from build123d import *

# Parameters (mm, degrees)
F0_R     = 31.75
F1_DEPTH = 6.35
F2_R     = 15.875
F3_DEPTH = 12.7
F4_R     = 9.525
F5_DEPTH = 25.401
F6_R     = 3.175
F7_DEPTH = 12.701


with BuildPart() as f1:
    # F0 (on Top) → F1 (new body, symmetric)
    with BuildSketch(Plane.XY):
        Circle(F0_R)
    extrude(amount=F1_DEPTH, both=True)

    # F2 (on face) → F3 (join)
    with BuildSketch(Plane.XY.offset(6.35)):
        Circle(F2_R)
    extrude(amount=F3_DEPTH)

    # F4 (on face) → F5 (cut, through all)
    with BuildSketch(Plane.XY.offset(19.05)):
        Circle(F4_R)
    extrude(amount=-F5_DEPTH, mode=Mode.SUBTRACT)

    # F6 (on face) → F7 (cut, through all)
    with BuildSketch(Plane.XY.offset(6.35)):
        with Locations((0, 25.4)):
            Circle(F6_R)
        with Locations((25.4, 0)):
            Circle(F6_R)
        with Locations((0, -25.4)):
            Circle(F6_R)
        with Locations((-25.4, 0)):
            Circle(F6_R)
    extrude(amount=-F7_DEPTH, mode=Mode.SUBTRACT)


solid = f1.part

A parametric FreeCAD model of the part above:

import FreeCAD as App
import Part
import Sketcher
from FreeCAD import Vector
Q = App.Units.Quantity

doc = App.newDocument("Part")
body = doc.addObject("PartDesign::Body", "Body")

sketch1 = body.newObject("Sketcher::SketchObject", "Sketch")
sketch1.AttachmentSupport = (doc.getObject("XY_Plane"), [""])
sketch1.MapMode = "FlatFace"
sketch1.addGeometry(Part.Circle(Vector(0, 0, 0), Vector(0, 0, 1), 32), False)
sketch1.addConstraint(Sketcher.Constraint("Coincident", 0, 3, -1, 1))
sketch1.addConstraint(Sketcher.Constraint("Diameter", 0, Q("2.5 in")))
pad1 = body.newObject("PartDesign::Pad", "Pad")
pad1.Profile = sketch1
pad1.Length = Q("0.5 in")
pad1.Midplane = True

sketch2 = body.newObject("Sketcher::SketchObject", "Sketch001")
sketch2.AttachmentSupport = (doc.getObject("XY_Plane"), [""])
sketch2.MapMode = "FlatFace"
sketch2.AttachmentOffset = App.Placement(Vector(0, 0, 0.25 * 25.4), App.Rotation())
sketch2.addGeometry(Part.Circle(Vector(0, 0, 0), Vector(0, 0, 1), 16), False)
sketch2.addConstraint(Sketcher.Constraint("Coincident", 0, 3, -1, 1))
sketch2.addConstraint(Sketcher.Constraint("Diameter", 0, Q("1.25 in")))
pad2 = body.newObject("PartDesign::Pad", "Pad001")
pad2.Profile = sketch2
pad2.Length = Q("0.5 in")

sketch3 = body.newObject("Sketcher::SketchObject", "Sketch002")
sketch3.AttachmentSupport = (doc.getObject("XY_Plane"), [""])
sketch3.MapMode = "FlatFace"
sketch3.AttachmentOffset = App.Placement(Vector(0, 0, 0.75 * 25.4), App.Rotation())
sketch3.addGeometry(Part.Circle(Vector(0, 0, 0), Vector(0, 0, 1), 10), False)
sketch3.addConstraint(Sketcher.Constraint("Coincident", 0, 3, -1, 1))
sketch3.addConstraint(Sketcher.Constraint("Diameter", 0, Q("0.75 in")))
pocket1 = body.newObject("PartDesign::Pocket", "Pocket")
pocket1.Profile = sketch3
pocket1.Type = "ThroughAll"

sketch4 = body.newObject("Sketcher::SketchObject", "Sketch003")
sketch4.AttachmentSupport = (doc.getObject("XY_Plane"), [""])
sketch4.MapMode = "FlatFace"
sketch4.AttachmentOffset = App.Placement(Vector(0, 0, 0.25 * 25.4), App.Rotation())
sketch4.addGeometry(Part.Circle(Vector(0, 25.4, 0), Vector(0, 0, 1), 3.2), False)
sketch4.addGeometry(Part.Circle(Vector(25.4, 0, 0), Vector(0, 0, 1), 3.2), False)
sketch4.addGeometry(Part.Circle(Vector(0, -25.4, 0), Vector(0, 0, 1), 3.2), False)
sketch4.addGeometry(Part.Circle(Vector(-25.4, 0, 0), Vector(0, 0, 1), 3.2), False)
sketch4.addConstraint(Sketcher.Constraint("Equal", 0, 1))
sketch4.addConstraint(Sketcher.Constraint("Equal", 1, 2))
sketch4.addConstraint(Sketcher.Constraint("Equal", 2, 3))
sketch4.addConstraint(Sketcher.Constraint("Symmetric", 0, 3, 2, 3, -1, 1))
sketch4.addConstraint(Sketcher.Constraint("Symmetric", 1, 3, 3, 3, -1, 1))
sketch4.addConstraint(Sketcher.Constraint("PointOnObject", 0, 3, -2))
sketch4.addConstraint(Sketcher.Constraint("PointOnObject", 1, 3, -1))
sketch4.addConstraint(Sketcher.Constraint("Diameter", 0, Q("0.25 in")))
sketch4.addConstraint(Sketcher.Constraint("DistanceY", -1, 1, 0, 3, Q("1 in")))
sketch4.addConstraint(Sketcher.Constraint("DistanceX", -1, 1, 1, 3, Q("1 in")))
pocket2 = body.newObject("PartDesign::Pocket", "Pocket001")
pocket2.Profile = sketch4
pocket2.Type = "ThroughAll"

doc.recompute()
